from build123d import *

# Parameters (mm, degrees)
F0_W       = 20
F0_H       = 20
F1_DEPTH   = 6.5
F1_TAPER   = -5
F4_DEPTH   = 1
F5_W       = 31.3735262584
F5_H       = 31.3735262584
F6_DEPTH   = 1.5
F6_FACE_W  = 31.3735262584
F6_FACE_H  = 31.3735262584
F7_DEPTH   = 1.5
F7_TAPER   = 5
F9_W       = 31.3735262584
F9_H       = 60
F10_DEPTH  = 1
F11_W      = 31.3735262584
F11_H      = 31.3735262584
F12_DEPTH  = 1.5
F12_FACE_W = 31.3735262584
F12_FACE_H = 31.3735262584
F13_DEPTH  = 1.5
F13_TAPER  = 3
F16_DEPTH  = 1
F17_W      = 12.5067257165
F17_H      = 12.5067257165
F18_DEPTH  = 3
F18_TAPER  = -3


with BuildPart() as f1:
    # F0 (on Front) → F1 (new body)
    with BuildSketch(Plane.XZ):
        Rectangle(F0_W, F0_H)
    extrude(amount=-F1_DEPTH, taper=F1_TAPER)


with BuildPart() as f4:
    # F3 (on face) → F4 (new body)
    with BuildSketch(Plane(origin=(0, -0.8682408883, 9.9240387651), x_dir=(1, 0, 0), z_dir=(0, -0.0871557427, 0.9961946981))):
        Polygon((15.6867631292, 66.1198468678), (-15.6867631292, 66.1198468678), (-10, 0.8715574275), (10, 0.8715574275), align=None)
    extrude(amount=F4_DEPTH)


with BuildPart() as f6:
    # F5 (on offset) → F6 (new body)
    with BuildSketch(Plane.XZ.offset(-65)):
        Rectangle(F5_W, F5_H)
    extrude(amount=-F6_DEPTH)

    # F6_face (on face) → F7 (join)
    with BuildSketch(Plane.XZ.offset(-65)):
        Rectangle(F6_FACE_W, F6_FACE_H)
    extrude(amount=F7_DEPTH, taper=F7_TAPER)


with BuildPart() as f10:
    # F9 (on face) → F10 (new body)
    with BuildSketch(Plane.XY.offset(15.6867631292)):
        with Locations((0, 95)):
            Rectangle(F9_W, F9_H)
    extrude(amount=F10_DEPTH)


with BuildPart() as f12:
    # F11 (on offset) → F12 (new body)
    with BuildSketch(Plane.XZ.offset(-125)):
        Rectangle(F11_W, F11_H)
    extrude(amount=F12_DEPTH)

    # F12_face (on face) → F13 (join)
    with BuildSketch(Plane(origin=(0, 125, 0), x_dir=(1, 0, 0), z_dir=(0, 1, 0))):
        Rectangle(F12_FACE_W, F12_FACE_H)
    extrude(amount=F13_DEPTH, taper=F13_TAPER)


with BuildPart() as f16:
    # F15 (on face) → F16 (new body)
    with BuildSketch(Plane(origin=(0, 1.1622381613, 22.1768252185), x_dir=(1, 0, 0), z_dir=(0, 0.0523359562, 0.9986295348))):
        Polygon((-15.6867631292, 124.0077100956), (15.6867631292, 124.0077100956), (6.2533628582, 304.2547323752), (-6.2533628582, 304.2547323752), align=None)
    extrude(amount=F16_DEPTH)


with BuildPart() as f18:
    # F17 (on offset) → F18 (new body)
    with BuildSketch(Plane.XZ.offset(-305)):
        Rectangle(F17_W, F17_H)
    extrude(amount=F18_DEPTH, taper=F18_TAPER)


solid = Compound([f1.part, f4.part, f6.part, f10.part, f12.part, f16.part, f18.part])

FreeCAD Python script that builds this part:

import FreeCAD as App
import Part
import Sketcher
Q = App.Units.Quantity

doc = App.newDocument("Part")
body = doc.addObject("PartDesign::Body", "Body")

# Sketch on XZ plane
sketch1 = doc.addObject("Sketcher::SketchObject", "Sketch")
body.addObject(sketch1)
sketch1.AttachmentSupport = (doc.XZ_Plane, [""])
sketch1.MapMode = "FlatFace"
sketch1.addGeometry(Part.LineSegment(App.Vector(-10, 10, 0), App.Vector(-10, -10, 0)), False)
sketch1.addGeometry(Part.LineSegment(App.Vector(-10, -10, 0), App.Vector(10, -10, 0)), False)
sketch1.addGeometry(Part.LineSegment(App.Vector(10, -10, 0), App.Vector(10, 10, 0)), False)
sketch1.addGeometry(Part.LineSegment(App.Vector(10, 10, 0), App.Vector(-10, 10, 0)), False)
sketch1.addConstraint(Sketcher.Constraint("Coincident", 0, 2, 1, 1))
sketch1.addConstraint(Sketcher.Constraint("Coincident", 1, 2, 2, 1))
sketch1.addConstraint(Sketcher.Constraint("Coincident", 2, 2, 3, 1))
sketch1.addConstraint(Sketcher.Constraint("Coincident", 3, 2, 0, 1))
sketch1.addConstraint(Sketcher.Constraint("Vertical", 0))
sketch1.addConstraint(Sketcher.Constraint("Horizontal", 1))
sketch1.addConstraint(Sketcher.Constraint("Vertical", 2))
sketch1.addConstraint(Sketcher.Constraint("Horizontal", 3))
sketch1.addConstraint(Sketcher.Constraint("Symmetric", 0, 2, 2, 2, -1, 1))
sketch1.addConstraint(Sketcher.Constraint("Equal", 3, 0))
sketch1.addConstraint(Sketcher.Constraint("DistanceX", 1, 1, 1, 2, Q("20 mm")))
pad1 = doc.addObject("PartDesign::Pad", "Pad")
body.addObject(pad1)
pad1.Profile = sketch1
pad1.Length = 6.5
pad1.Reversed = True
pad1.TaperAngle = 5
body2 = doc.addObject("PartDesign::Body", "Body001")

# Sketch on an angled plane
sketch2 = doc.addObject("Sketcher::SketchObject", "Sketch001")
body2.addObject(sketch2)
sketch2.Placement = App.Placement(App.Vector(0, -0.868241, 9.924039), App.Rotation(App.Vector(1, 0, 0), App.Vector(0, 0.996194698, 0.087155743), App.Vector(0, -0.087155743, 0.996194698), "ZXY"))
sketch2.addGeometry(Part.LineSegment(App.Vector(15.686763, 66.119847, 0), App.Vector(-15.686763, 66.119847, 0)), False)
sketch2.addGeometry(Part.LineSegment(App.Vector(-15.686763, 66.119847, 0), App.Vector(-10, 0.871557, 0)), False)
sketch2.addGeometry(Part.LineSegment(App.Vector(-10, 0.871557, 0), App.Vector(10, 0.871557, 0)), False)
sketch2.addGeometry(Part.LineSegment(App.Vector(10, 0.871557, 0), App.Vector(15.686763, 66.119847, 0)), False)
sketch2.addConstraint(Sketcher.Constraint("Coincident", 0, 2, 1, 1))
sketch2.addConstraint(Sketcher.Constraint("Coincident", 1, 2, 2, 1))
sketch2.addConstraint(Sketcher.Constraint("Coincident", 2, 2, 3, 1))
sketch2.addConstraint(Sketcher.Constraint("Coincident", 3, 2, 0, 1))
sketch2.addConstraint(Sketcher.Constraint("Horizontal", 0))
sketch2.addConstraint(Sketcher.Constraint("Horizontal", 2))
sketch2.addConstraint(Sketcher.Constraint("Equal", 1, 3))
sketch2.addConstraint(Sketcher.Constraint("DistanceX", 2, 1, 2, 2, Q("20 mm")))
sketch2.addConstraint(Sketcher.Constraint("DistanceX", 1, 2, -1, 1, Q("10 mm")))
sketch2.addConstraint(Sketcher.Constraint("DistanceX", 0, 2, 0, 1, Q("31.373526 mm")))
sketch2.addConstraint(Sketcher.Constraint("DistanceY", 1, 2, 0, 2, Q("65.248289 mm")))
sketch2.addConstraint(Sketcher.Constraint("DistanceY", -1, 1, 0, 2, Q("66.119847 mm")))
pad2 = doc.addObject("PartDesign::Pad", "Pad001")
body2.addObject(pad2)
pad2.Profile = sketch2
pad2.Length = 1
body3 = doc.addObject("PartDesign::Body", "Body002")

# Sketch on XZ plane
sketch3 = doc.addObject("Sketcher::SketchObject", "Sketch002")
body3.addObject(sketch3)
sketch3.AttachmentSupport = (doc.getObject("XZ_Plane002"), [""])
sketch3.MapMode = "FlatFace"
sketch3.AttachmentOffset = App.Placement(App.Vector(0, 0, -65), App.Rotation())
sketch3.addGeometry(Part.LineSegment(App.Vector(-15.686763, 15.686763, 0), App.Vector(-15.686763, -15.686763, 0)), False)
sketch3.addGeometry(Part.LineSegment(App.Vector(-15.686763, -15.686763, 0), App.Vector(15.686763, -15.686763, 0)), False)
sketch3.addGeometry(Part.LineSegment(App.Vector(15.686763, -15.686763, 0), App.Vector(15.686763, 15.686763, 0)), False)
sketch3.addGeometry(Part.LineSegment(App.Vector(15.686763, 15.686763, 0), App.Vector(-15.686763, 15.686763, 0)), False)
sketch3.addConstraint(Sketcher.Constraint("Coincident", 0, 2, 1, 1))
sketch3.addConstraint(Sketcher.Constraint("Coincident", 1, 2, 2, 1))
sketch3.addConstraint(Sketcher.Constraint("Coincident", 2, 2, 3, 1))
sketch3.addConstraint(Sketcher.Constraint("Coincident", 3, 2, 0, 1))
sketch3.addConstraint(Sketcher.Constraint("Vertical", 0))
sketch3.addConstraint(Sketcher.Constraint("Horizontal", 1))
sketch3.addConstraint(Sketcher.Constraint("Vertical", 2))
sketch3.addConstraint(Sketcher.Constraint("Horizontal", 3))
sketch3.addConstraint(Sketcher.Constraint("Symmetric", 0, 2, 2, 2, -1, 1))
sketch3.addConstraint(Sketcher.Constraint("Equal", 3, 0))
sketch3.addConstraint(Sketcher.Constraint("DistanceX", 1, 1, 1, 2, Q("31.373526 mm")))
pad3 = doc.addObject("PartDesign::Pad", "Pad002")
body3.addObject(pad3)
pad3.Profile = sketch3
pad3.Length = 1.5
pad3.Reversed = True

# Sketch on XZ plane
sketch4 = doc.addObject("Sketcher::SketchObject", "Sketch003")
body3.addObject(sketch4)
sketch4.AttachmentSupport = (doc.getObject("XZ_Plane002"), [""])
sketch4.MapMode = "FlatFace"
sketch4.AttachmentOffset = App.Placement(App.Vector(0, 0, -65), App.Rotation())
sketch4.addGeometry(Part.LineSegment(App.Vector(-15.686763, 15.686763, 0), App.Vector(-15.686763, -15.686763, 0)), False)
sketch4.addGeometry(Part.LineSegment(App.Vector(-15.686763, -15.686763, 0), App.Vector(15.686763, -15.686763, 0)), False)
sketch4.addGeometry(Part.LineSegment(App.Vector(15.686763, -15.686763, 0), App.Vector(15.686763, 15.686763, 0)), False)
sketch4.addGeometry(Part.LineSegment(App.Vector(15.686763, 15.686763, 0), App.Vector(-15.686763, 15.686763, 0)), False)
sketch4.addConstraint(Sketcher.Constraint("Coincident", 0, 2, 1, 1))
sketch4.addConstraint(Sketcher.Constraint("Coincident", 1, 2, 2, 1))
sketch4.addConstraint(Sketcher.Constraint("Coincident", 2, 2, 3, 1))
sketch4.addConstraint(Sketcher.Constraint("Coincident", 3, 2, 0, 1))
sketch4.addConstraint(Sketcher.Constraint("Vertical", 0))
sketch4.addConstraint(Sketcher.Constraint("Horizontal", 1))
sketch4.addConstraint(Sketcher.Constraint("Vertical", 2))
sketch4.addConstraint(Sketcher.Constraint("Horizontal", 3))
sketch4.addConstraint(Sketcher.Constraint("Symmetric", 0, 2, 2, 2, -1, 1))
sketch4.addConstraint(Sketcher.Constraint("Equal", 3, 0))
sketch4.addConstraint(Sketcher.Constraint("DistanceX", 1, 1, 1, 2, Q("31.373526 mm")))
pad4 = doc.addObject("PartDesign::Pad", "Pad003")
body3.addObject(pad4)
pad4.Profile = sketch4
pad4.Length = 1.5
pad4.TaperAngle = -5
body4 = doc.addObject("PartDesign::Body", "Body003")

# Sketch on XY plane
sketch5 = doc.addObject("Sketcher::SketchObject", "Sketch004")
body4.addObject(sketch5)
sketch5.AttachmentSupport = (doc.getObject("XY_Plane003"), [""])
sketch5.MapMode = "FlatFace"
sketch5.AttachmentOffset = App.Placement(App.Vector(0, 0, 15.686763), App.Rotation())
sketch5.addGeometry(Part.LineSegment(App.Vector(-15.686763, 125, 0), App.Vector(-15.686763, 65, 0)), False)
sketch5.addGeometry(Part.LineSegment(App.Vector(-15.686763, 65, 0), App.Vector(15.686763, 65, 0)), False)
sketch5.addGeometry(Part.LineSegment(App.Vector(15.686763, 65, 0), App.Vector(15.686763, 125, 0)), False)
sketch5.addGeometry(Part.LineSegment(App.Vector(15.686763, 125, 0), App.Vector(-15.686763, 125, 0)), False)
sketch5.addConstraint(Sketcher.Constraint("Coincident", 0, 2, 1, 1))
sketch5.addConstraint(Sketcher.Constraint("Coincident", 1, 2, 2, 1))
sketch5.addConstraint(Sketcher.Constraint("Coincident", 2, 2, 3, 1))
sketch5.addConstraint(Sketcher.Constraint("Coincident", 3, 2, 0, 1))
sketch5.addConstraint(Sketcher.Constraint("Vertical", 0))
sketch5.addConstraint(Sketcher.Constraint("Horizontal", 1))
sketch5.addConstraint(Sketcher.Constraint("Vertical", 2))
sketch5.addConstraint(Sketcher.Constraint("Horizontal", 3))
sketch5.addConstraint(Sketcher.Constraint("DistanceY", 0, 2, 0, 1, Q("60 mm")))
sketch5.addConstraint(Sketcher.Constraint("DistanceY", -1, 1, 0, 2, Q("65 mm")))
sketch5.addConstraint(Sketcher.Constraint("DistanceX", 1, 1, 1, 2, Q("31.373526 mm")))
sketch5.addConstraint(Sketcher.Constraint("DistanceX", 0, 2, -1, 1, Q("15.686763 mm")))
pad5 = doc.addObject("PartDesign::Pad", "Pad004")
body4.addObject(pad5)
pad5.Profile = sketch5
pad5.Length = 1
body5 = doc.addObject("PartDesign::Body", "Body004")

# Sketch on XZ plane
sketch6 = doc.addObject("Sketcher::SketchObject", "Sketch005")
body5.addObject(sketch6)
sketch6.AttachmentSupport = (doc.getObject("XZ_Plane004"), [""])
sketch6.MapMode = "FlatFace"
sketch6.AttachmentOffset = App.Placement(App.Vector(0, 0, -125), App.Rotation())
sketch6.addGeometry(Part.LineSegment(App.Vector(-15.686763, 15.686763, 0), App.Vector(-15.686763, -15.686763, 0)), False)
sketch6.addGeometry(Part.LineSegment(App.Vector(-15.686763, -15.686763, 0), App.Vector(15.686763, -15.686763, 0)), False)
sketch6.addGeometry(Part.LineSegment(App.Vector(15.686763, -15.686763, 0), App.Vector(15.686763, 15.686763, 0)), False)
sketch6.addGeometry(Part.LineSegment(App.Vector(15.686763, 15.686763, 0), App.Vector(-15.686763, 15.686763, 0)), False)
sketch6.addConstraint(Sketcher.Constraint("Coincident", 0, 2, 1, 1))
sketch6.addConstraint(Sketcher.Constraint("Coincident", 1, 2, 2, 1))
sketch6.addConstraint(Sketcher.Constraint("Coincident", 2, 2, 3, 1))
sketch6.addConstraint(Sketcher.Constraint("Coincident", 3, 2, 0, 1))
sketch6.addConstraint(Sketcher.Constraint("Vertical", 0))
sketch6.addConstraint(Sketcher.Constraint("Horizontal", 1))
sketch6.addConstraint(Sketcher.Constraint("Vertical", 2))
sketch6.addConstraint(Sketcher.Constraint("Horizontal", 3))
sketch6.addConstraint(Sketcher.Constraint("Symmetric", 0, 2, 2, 2, -1, 1))
sketch6.addConstraint(Sketcher.Constraint("Equal", 3, 0))
sketch6.addConstraint(Sketcher.Constraint("DistanceX", 1, 1, 1, 2, Q("31.373526 mm")))
pad6 = doc.addObject("PartDesign::Pad", "Pad005")
body5.addObject(pad6)
pad6.Profile = sketch6
pad6.Length = 1.5

# Sketch on XZ plane
sketch7 = doc.addObject("Sketcher::SketchObject", "Sketch006")
body5.addObject(sketch7)
sketch7.AttachmentSupport = (doc.getObject("XZ_Plane004"), [""])
sketch7.MapMode = "FlatFace"
sketch7.AttachmentOffset = App.Placement(App.Vector(0, 0, -125), App.Rotation())
sketch7.addGeometry(Part.LineSegment(App.Vector(-15.686763, -15.686763, 0), App.Vector(-15.686763, 15.686763, 0)), False)
sketch7.addGeometry(Part.LineSegment(App.Vector(-15.686763, 15.686763, 0), App.Vector(15.686763, 15.686763, 0)), False)
sketch7.addGeometry(Part.LineSegment(App.Vector(15.686763, 15.686763, 0), App.Vector(15.686763, -15.686763, 0)), False)
sketch7.addGeometry(Part.LineSegment(App.Vector(15.686763, -15.686763, 0), App.Vector(-15.686763, -15.686763, 0)), False)
sketch7.addConstraint(Sketcher.Constraint("Coincident", 0, 2, 1, 1))
sketch7.addConstraint(Sketcher.Constraint("Coincident", 1, 2, 2, 1))
sketch7.addConstraint(Sketcher.Constraint("Coincident", 2, 2, 3, 1))
sketch7.addConstraint(Sketcher.Constraint("Coincident", 3, 2, 0, 1))
sketch7.addConstraint(Sketcher.Constraint("Vertical", 0))
sketch7.addConstraint(Sketcher.Constraint("Horizontal", 1))
sketch7.addConstraint(Sketcher.Constraint("Vertical", 2))
sketch7.addConstraint(Sketcher.Constraint("Horizontal", 3))
sketch7.addConstraint(Sketcher.Constraint("Symmetric", 0, 2, 2, 2, -1, 1))
sketch7.addConstraint(Sketcher.Constraint("Equal", 3, 0))
sketch7.addConstraint(Sketcher.Constraint("DistanceX", 1, 1, 1, 2, Q("31.373526 mm")))
pad7 = doc.addObject("PartDesign::Pad", "Pad006")
body5.addObject(pad7)
pad7.Profile = sketch7
pad7.Length = 1.5
pad7.Reversed = True
pad7.TaperAngle = -3
body6 = doc.addObject("PartDesign::Body", "Body005")

# Sketch on an angled plane
sketch8 = doc.addObject("Sketcher::SketchObject", "Sketch007")
body6.addObject(sketch8)
sketch8.Placement = App.Placement(App.Vector(0, 1.162238, 22.176825), App.Rotation(App.Vector(1, 0, 0), App.Vector(0, 0.998629535, -0.052335956), App.Vector(0, 0.052335956, 0.998629535), "ZXY"))
sketch8.addGeometry(Part.LineSegment(App.Vector(-15.686763, 124.00771, 0), App.Vector(15.686763, 124.00771, 0)), False)
sketch8.addGeometry(Part.LineSegment(App.Vector(15.686763, 124.00771, 0), App.Vector(6.253363, 304.254733, 0)), False)
sketch8.addGeometry(Part.LineSegment(App.Vector(6.253363, 304.254733, 0), App.Vector(-6.253363, 304.254733, 0)), False)
sketch8.addGeometry(Part.LineSegment(App.Vector(-6.253363, 304.254733, 0), App.Vector(-15.686763, 124.00771, 0)), False)
sketch8.addConstraint(Sketcher.Constraint("Coincident", 0, 2, 1, 1))
sketch8.addConstraint(Sketcher.Constraint("Coincident", 1, 2, 2, 1))
sketch8.addConstraint(Sketcher.Constraint("Coincident", 2, 2, 3, 1))
sketch8.addConstraint(Sketcher.Constraint("Coincident", 3, 2, 0, 1))
sketch8.addConstraint(Sketcher.Constraint("Horizontal", 0))
sketch8.addConstraint(Sketcher.Constraint("Horizontal", 2))
sketch8.addConstraint(Sketcher.Constraint("Equal", 1, 3))
sketch8.addConstraint(Sketcher.Constraint("DistanceX", 1, 2, 0, 2, Q("9.4334 mm")))
sketch8.addConstraint(Sketcher.Constraint("DistanceX", 0, 1, 0, 2, Q("31.373526 mm")))
sketch8.addConstraint(Sketcher.Constraint("DistanceY", -1, 1, 0, 2, Q("124.00771 mm")))
sketch8.addConstraint(Sketcher.Constraint("Distance", 1, Q("180.493707 mm")))
sketch8.addConstraint(Sketcher.Constraint("DistanceX", -1, 1, 0, 2, Q("15.686763 mm")))
pad8 = doc.addObject("PartDesign::Pad", "Pad007")
body6.addObject(pad8)
pad8.Profile = sketch8
pad8.Length = 1
body7 = doc.addObject("PartDesign::Body", "Body006")

# Sketch on XZ plane
sketch9 = doc.addObject("Sketcher::SketchObject", "Sketch008")
body7.addObject(sketch9)
sketch9.AttachmentSupport = (doc.getObject("XZ_Plane006"), [""])
sketch9.MapMode = "FlatFace"
sketch9.AttachmentOffset = App.Placement(App.Vector(0, 0, -305), App.Rotation())
sketch9.addGeometry(Part.LineSegment(App.Vector(-6.253363, 6.253363, 0), App.Vector(-6.253363, -6.253363, 0)), False)
sketch9.addGeometry(Part.LineSegment(App.Vector(-6.253363, -6.253363, 0), App.Vector(6.253363, -6.253363, 0)), False)
sketch9.addGeometry(Part.LineSegment(App.Vector(6.253363, -6.253363, 0), App.Vector(6.253363, 6.253363, 0)), False)
sketch9.addGeometry(Part.LineSegment(App.Vector(6.253363, 6.253363, 0), App.Vector(-6.253363, 6.253363, 0)), False)
sketch9.addConstraint(Sketcher.Constraint("Coincident", 0, 2, 1, 1))
sketch9.addConstraint(Sketcher.Constraint("Coincident", 1, 2, 2, 1))
sketch9.addConstraint(Sketcher.Constraint("Coincident", 2, 2, 3, 1))
sketch9.addConstraint(Sketcher.Constraint("Coincident", 3, 2, 0, 1))
sketch9.addConstraint(Sketcher.Constraint("Vertical", 0))
sketch9.addConstraint(Sketcher.Constraint("Horizontal", 1))
sketch9.addConstraint(Sketcher.Constraint("Vertical", 2))
sketch9.addConstraint(Sketcher.Constraint("Horizontal", 3))
sketch9.addConstraint(Sketcher.Constraint("Symmetric", 0, 2, 2, 2, -1, 1))
sketch9.addConstraint(Sketcher.Constraint("Equal", 3, 0))
sketch9.addConstraint(Sketcher.Constraint("DistanceX", 1, 1, 1, 2, Q("12.506726 mm")))
pad9 = doc.addObject("PartDesign::Pad", "Pad008")
body7.addObject(pad9)
pad9.Profile = sketch9
pad9.Length = 3
pad9.TaperAngle = 3

doc.recompute()
